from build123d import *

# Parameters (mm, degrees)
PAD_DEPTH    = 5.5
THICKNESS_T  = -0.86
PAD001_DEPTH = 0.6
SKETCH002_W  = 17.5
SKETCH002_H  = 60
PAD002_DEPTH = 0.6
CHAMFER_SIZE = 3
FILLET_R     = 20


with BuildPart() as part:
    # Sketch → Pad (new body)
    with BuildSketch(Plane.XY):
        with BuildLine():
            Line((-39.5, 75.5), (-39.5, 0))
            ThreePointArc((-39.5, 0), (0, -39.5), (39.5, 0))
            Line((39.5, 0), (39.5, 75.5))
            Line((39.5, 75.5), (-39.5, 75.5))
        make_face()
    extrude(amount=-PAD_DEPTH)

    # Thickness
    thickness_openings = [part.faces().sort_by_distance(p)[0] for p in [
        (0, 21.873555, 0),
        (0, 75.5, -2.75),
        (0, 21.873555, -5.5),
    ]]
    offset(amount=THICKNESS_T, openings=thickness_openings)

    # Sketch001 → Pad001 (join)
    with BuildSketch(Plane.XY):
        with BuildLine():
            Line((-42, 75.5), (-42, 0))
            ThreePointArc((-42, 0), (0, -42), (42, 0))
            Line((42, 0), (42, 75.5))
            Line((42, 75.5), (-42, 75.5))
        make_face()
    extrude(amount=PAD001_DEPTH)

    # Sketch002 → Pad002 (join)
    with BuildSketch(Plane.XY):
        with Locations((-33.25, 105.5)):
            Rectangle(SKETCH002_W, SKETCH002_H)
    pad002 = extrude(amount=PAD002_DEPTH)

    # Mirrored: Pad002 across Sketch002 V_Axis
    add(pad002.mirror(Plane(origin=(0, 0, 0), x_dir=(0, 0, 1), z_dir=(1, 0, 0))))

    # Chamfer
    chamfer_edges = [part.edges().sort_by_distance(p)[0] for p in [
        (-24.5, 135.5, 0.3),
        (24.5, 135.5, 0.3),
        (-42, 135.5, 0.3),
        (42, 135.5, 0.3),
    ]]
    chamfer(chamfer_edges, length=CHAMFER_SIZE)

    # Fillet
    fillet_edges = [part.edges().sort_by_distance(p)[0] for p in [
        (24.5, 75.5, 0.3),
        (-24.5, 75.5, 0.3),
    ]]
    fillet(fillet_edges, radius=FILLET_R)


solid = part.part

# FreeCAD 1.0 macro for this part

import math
import FreeCAD as App
import Part
import Sketcher

V = App.Vector


def edges_at(feature, points):
    """Names of the edges that pass closest to the given points."""
    edges = feature.Shape.Edges
    near = lambda p: min(range(len(edges)), key=lambda i: edges[i].distToShape(Part.Vertex(*p))[0])
    return sorted({f"Edge{near(p) + 1}" for p in points})


def faces_at(feature, points):
    """Names of the faces that lie closest to the given points."""
    faces = feature.Shape.Faces
    near = lambda p: min(range(len(faces)), key=lambda i: faces[i].distToShape(Part.Vertex(*p))[0])
    return sorted({f"Face{near(p) + 1}" for p in points})

doc = App.newDocument("Part")
body = doc.addObject("PartDesign::Body", "Body")

# Sketch on XY plane
sketch1 = doc.addObject("Sketcher::SketchObject", "Sketch")
body.addObject(sketch1)
sketch1.AttachmentSupport = (doc.XY_Plane, [""])
sketch1.MapMode = "FlatFace"
sketch1.addGeometry(Part.LineSegment(V(-40, 76, 0), V(-40, 0, 0)), False)
sketch1.addGeometry(Part.ArcOfCircle(Part.Circle(V(0, 0, 0), V(0, 0, 1), 40), math.radians(180), math.radians(360)), False)
sketch1.addGeometry(Part.LineSegment(V(40, 0, 0), V(40, 76, 0)), False)
sketch1.addGeometry(Part.LineSegment(V(40, 76, 0), V(-40, 76, 0)), False)
sketch1.addConstraint(Sketcher.Constraint("Tangent", 0, 2, 1, 1))
sketch1.addConstraint(Sketcher.Constraint("Tangent", 1, 2, 2, 1))
sketch1.addConstraint(Sketcher.Constraint("Coincident", 2, 2, 3, 1))
sketch1.addConstraint(Sketcher.Constraint("Coincident", 3, 2, 0, 1))
sketch1.addConstraint(Sketcher.Constraint("Vertical", 0))
sketch1.addConstraint(Sketcher.Constraint("Vertical", 2))
sketch1.addConstraint(Sketcher.Constraint("Horizontal", 3))
sketch1.addConstraint(Sketcher.Constraint("Coincident", 1, 3, -1, 1))
sketch1.addConstraint(Sketcher.Constraint("Radius", 1, 39.5))
sketch1.addConstraint(Sketcher.Constraint("DistanceY", 0, 2, 0, 1, 75.5))
pad1 = doc.addObject("PartDesign::Pad", "Pad")
body.addObject(pad1)
pad1.Profile = sketch1
pad1.Length = 5.5
pad1.Reversed = True
doc.recompute()

thickness = doc.addObject("PartDesign::Thickness", "Thickness")
body.addObject(thickness)
thickness.Base = (pad1, faces_at(pad1, [(0, 18, 0), (0, 75.5, -2.75), (0, 18, -5.5)]))
thickness.Value = 0.86
thickness.Reversed = True
thickness.Join = "Arc"

# Sketch on XY plane
sketch2 = doc.addObject("Sketcher::SketchObject", "Sketch001")
body.addObject(sketch2)
sketch2.AttachmentSupport = (doc.XY_Plane, [""])
sketch2.MapMode = "FlatFace"
sketch2.addGeometry(Part.LineSegment(V(-42, 76, 0), V(-42, 0, 0)), False)
sketch2.addGeometry(Part.ArcOfCircle(Part.Circle(V(0, 0, 0), V(0, 0, 1), 42), math.radians(180), math.radians(360)), False)
sketch2.addGeometry(Part.LineSegment(V(42, 0, 0), V(42, 76, 0)), False)
sketch2.addGeometry(Part.LineSegment(V(42, 76, 0), V(-42, 76, 0)), False)
sketch2.addConstraint(Sketcher.Constraint("Tangent", 0, 2, 1, 1))
sketch2.addConstraint(Sketcher.Constraint("Tangent", 1, 2, 2, 1))
sketch2.addConstraint(Sketcher.Constraint("Coincident", 2, 2, 3, 1))
sketch2.addConstraint(Sketcher.Constraint("Coincident", 3, 2, 0, 1))
sketch2.addConstraint(Sketcher.Constraint("Vertical", 0))
sketch2.addConstraint(Sketcher.Constraint("Vertical", 2))
sketch2.addConstraint(Sketcher.Constraint("Horizontal", 3))
sketch2.addConstraint(Sketcher.Constraint("Coincident", 1, 3, -1, 1))
sketch2.addConstraint(Sketcher.Constraint("Radius", 1, 42.0))
sketch2.addConstraint(Sketcher.Constraint("DistanceY", 0, 2, 0, 1, 75.5))
pad2 = doc.addObject("PartDesign::Pad", "Pad001")
body.addObject(pad2)
pad2.Profile = sketch2
pad2.Length = 0.6

# Sketch on XY plane
sketch3 = doc.addObject("Sketcher::SketchObject", "Sketch002")
body.addObject(sketch3)
sketch3.AttachmentSupport = (doc.XY_Plane, [""])
sketch3.MapMode = "FlatFace"
sketch3.addGeometry(Part.LineSegment(V(-42, 136, 0), V(-42, 76, 0)), False)
sketch3.addGeometry(Part.LineSegment(V(-42, 76, 0), V(-24, 76, 0)), False)
sketch3.addGeometry(Part.LineSegment(V(-24, 76, 0), V(-24, 136, 0)), False)
sketch3.addGeometry(Part.LineSegment(V(-24, 136, 0), V(-42, 136, 0)), False)
sketch3.addConstraint(Sketcher.Constraint("Coincident", 0, 2, 1, 1))
sketch3.addConstraint(Sketcher.Constraint("Coincident", 1, 2, 2, 1))
sketch3.addConstraint(Sketcher.Constraint("Coincident", 2, 2, 3, 1))
sketch3.addConstraint(Sketcher.Constraint("Coincident", 3, 2, 0, 1))
sketch3.addConstraint(Sketcher.Constraint("Vertical", 0))
sketch3.addConstraint(Sketcher.Constraint("Horizontal", 1))
sketch3.addConstraint(Sketcher.Constraint("Vertical", 2))
sketch3.addConstraint(Sketcher.Constraint("Horizontal", 3))
sketch3.addConstraint(Sketcher.Constraint("DistanceY", 0, 2, 0, 1, 60.0))
sketch3.addConstraint(Sketcher.Constraint("DistanceX", 1, 1, 1, 2, 17.5))
sketch3.addConstraint(Sketcher.Constraint("DistanceX", 0, 2, -1, 1, 42.0))
sketch3.addConstraint(Sketcher.Constraint("DistanceY", -1, 1, 0, 2, 75.5))
pad3 = doc.addObject("PartDesign::Pad", "Pad002")
body.addObject(pad3)
pad3.Profile = sketch3
pad3.Length = 0.6
doc.recompute()

mirrored = doc.addObject("PartDesign::Mirrored", "Mirrored")
body.addObject(mirrored)
mirrored.Originals = [pad3]
mirrored.MirrorPlane = (doc.YZ_Plane, [""])
body.Tip = mirrored
doc.recompute()

chamfer = doc.addObject("PartDesign::Chamfer", "Chamfer")
body.addObject(chamfer)
chamfer.Base = (mirrored, edges_at(mirrored, [
    (-24.5, 135.5, 0.3),
    (24.5, 135.5, 0.3),
    (-42, 135.5, 0.3),
    (42, 135.5, 0.3),
]))
chamfer.Size = 3
doc.recompute()

fillet = doc.addObject("PartDesign::Fillet", "Fillet")
body.addObject(fillet)
fillet.Base = (chamfer, edges_at(chamfer, [(24.5, 75.5, 0.3), (-24.5, 75.5, 0.3)]))
fillet.Radius = 20

doc.recompute()
